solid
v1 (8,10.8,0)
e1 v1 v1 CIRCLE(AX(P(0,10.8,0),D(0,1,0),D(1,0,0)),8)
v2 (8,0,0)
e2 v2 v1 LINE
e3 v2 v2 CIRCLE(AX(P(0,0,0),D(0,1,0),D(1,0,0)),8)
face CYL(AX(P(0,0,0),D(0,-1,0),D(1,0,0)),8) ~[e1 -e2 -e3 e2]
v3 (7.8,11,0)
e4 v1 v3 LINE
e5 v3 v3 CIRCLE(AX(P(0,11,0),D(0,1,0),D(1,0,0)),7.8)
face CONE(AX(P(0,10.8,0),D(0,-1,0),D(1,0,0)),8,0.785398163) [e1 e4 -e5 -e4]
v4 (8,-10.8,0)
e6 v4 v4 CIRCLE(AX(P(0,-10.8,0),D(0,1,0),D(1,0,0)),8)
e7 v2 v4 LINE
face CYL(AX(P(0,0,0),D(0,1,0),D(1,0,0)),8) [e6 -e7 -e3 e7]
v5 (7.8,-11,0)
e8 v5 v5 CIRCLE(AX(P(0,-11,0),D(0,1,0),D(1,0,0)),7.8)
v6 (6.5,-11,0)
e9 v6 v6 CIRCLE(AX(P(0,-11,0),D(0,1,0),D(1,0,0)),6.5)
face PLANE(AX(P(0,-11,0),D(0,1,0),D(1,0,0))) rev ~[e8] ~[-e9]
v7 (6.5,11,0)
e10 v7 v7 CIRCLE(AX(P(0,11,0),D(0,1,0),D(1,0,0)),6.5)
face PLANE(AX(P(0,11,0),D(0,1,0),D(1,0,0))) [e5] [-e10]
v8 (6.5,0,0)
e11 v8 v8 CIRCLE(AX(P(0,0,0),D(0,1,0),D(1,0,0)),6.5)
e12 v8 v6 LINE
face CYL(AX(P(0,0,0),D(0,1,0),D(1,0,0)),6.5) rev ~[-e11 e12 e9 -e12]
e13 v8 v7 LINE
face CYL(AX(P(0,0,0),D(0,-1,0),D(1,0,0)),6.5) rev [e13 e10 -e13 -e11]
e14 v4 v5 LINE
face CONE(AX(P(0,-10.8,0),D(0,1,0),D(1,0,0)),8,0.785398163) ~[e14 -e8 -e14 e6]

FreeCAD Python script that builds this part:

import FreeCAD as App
import Part
import Sketcher
from FreeCAD import Vector
Q = App.Units.Quantity


def edges_at(feature, points):
    """Names of the edges that pass closest to the given points."""
    edges = feature.Shape.Edges
    near = lambda p: min(range(len(edges)), key=lambda i: edges[i].distToShape(Part.Vertex(*p))[0])
    return sorted({f"Edge{near(p) + 1}" for p in points})

doc = App.newDocument("Part")
body = doc.addObject("PartDesign::Body", "Body")

# Sketch on XZ plane
sketch1 = body.newObject("Sketcher::SketchObject", "Sketch")
sketch1.AttachmentSupport = (doc.getObject("XZ_Plane"), [""])
sketch1.MapMode = "FlatFace"
sketch1.addGeometry(Part.Circle(Vector(0, 0, 0), Vector(0, 0, 1), 8), False)
sketch1.addGeometry(Part.Circle(Vector(0, 0, 0), Vector(0, 0, 1), 6), False)
sketch1.addConstraint(Sketcher.Constraint("Coincident", 0, 3, -1, 1))
sketch1.addConstraint(Sketcher.Constraint("Coincident", 1, 3, -1, 1))
sketch1.addConstraint(Sketcher.Constraint("Diameter", 0, Q("16 mm")))
sketch1.addConstraint(Sketcher.Constraint("Diameter", 1, Q("13 mm")))
pad1 = body.newObject("PartDesign::Pad", "Pad")
pad1.Profile = sketch1
pad1.Length = 22
pad1.Midplane = True
doc.recompute()

chamfer = body.newObject("PartDesign::Chamfer", "Chamfer")
chamfer.Base = (pad1, edges_at(pad1, [(-7.459, 11, 2.893), (-7.459, -11, -2.893)]))
chamfer.Size = 0.2

doc.recompute()
